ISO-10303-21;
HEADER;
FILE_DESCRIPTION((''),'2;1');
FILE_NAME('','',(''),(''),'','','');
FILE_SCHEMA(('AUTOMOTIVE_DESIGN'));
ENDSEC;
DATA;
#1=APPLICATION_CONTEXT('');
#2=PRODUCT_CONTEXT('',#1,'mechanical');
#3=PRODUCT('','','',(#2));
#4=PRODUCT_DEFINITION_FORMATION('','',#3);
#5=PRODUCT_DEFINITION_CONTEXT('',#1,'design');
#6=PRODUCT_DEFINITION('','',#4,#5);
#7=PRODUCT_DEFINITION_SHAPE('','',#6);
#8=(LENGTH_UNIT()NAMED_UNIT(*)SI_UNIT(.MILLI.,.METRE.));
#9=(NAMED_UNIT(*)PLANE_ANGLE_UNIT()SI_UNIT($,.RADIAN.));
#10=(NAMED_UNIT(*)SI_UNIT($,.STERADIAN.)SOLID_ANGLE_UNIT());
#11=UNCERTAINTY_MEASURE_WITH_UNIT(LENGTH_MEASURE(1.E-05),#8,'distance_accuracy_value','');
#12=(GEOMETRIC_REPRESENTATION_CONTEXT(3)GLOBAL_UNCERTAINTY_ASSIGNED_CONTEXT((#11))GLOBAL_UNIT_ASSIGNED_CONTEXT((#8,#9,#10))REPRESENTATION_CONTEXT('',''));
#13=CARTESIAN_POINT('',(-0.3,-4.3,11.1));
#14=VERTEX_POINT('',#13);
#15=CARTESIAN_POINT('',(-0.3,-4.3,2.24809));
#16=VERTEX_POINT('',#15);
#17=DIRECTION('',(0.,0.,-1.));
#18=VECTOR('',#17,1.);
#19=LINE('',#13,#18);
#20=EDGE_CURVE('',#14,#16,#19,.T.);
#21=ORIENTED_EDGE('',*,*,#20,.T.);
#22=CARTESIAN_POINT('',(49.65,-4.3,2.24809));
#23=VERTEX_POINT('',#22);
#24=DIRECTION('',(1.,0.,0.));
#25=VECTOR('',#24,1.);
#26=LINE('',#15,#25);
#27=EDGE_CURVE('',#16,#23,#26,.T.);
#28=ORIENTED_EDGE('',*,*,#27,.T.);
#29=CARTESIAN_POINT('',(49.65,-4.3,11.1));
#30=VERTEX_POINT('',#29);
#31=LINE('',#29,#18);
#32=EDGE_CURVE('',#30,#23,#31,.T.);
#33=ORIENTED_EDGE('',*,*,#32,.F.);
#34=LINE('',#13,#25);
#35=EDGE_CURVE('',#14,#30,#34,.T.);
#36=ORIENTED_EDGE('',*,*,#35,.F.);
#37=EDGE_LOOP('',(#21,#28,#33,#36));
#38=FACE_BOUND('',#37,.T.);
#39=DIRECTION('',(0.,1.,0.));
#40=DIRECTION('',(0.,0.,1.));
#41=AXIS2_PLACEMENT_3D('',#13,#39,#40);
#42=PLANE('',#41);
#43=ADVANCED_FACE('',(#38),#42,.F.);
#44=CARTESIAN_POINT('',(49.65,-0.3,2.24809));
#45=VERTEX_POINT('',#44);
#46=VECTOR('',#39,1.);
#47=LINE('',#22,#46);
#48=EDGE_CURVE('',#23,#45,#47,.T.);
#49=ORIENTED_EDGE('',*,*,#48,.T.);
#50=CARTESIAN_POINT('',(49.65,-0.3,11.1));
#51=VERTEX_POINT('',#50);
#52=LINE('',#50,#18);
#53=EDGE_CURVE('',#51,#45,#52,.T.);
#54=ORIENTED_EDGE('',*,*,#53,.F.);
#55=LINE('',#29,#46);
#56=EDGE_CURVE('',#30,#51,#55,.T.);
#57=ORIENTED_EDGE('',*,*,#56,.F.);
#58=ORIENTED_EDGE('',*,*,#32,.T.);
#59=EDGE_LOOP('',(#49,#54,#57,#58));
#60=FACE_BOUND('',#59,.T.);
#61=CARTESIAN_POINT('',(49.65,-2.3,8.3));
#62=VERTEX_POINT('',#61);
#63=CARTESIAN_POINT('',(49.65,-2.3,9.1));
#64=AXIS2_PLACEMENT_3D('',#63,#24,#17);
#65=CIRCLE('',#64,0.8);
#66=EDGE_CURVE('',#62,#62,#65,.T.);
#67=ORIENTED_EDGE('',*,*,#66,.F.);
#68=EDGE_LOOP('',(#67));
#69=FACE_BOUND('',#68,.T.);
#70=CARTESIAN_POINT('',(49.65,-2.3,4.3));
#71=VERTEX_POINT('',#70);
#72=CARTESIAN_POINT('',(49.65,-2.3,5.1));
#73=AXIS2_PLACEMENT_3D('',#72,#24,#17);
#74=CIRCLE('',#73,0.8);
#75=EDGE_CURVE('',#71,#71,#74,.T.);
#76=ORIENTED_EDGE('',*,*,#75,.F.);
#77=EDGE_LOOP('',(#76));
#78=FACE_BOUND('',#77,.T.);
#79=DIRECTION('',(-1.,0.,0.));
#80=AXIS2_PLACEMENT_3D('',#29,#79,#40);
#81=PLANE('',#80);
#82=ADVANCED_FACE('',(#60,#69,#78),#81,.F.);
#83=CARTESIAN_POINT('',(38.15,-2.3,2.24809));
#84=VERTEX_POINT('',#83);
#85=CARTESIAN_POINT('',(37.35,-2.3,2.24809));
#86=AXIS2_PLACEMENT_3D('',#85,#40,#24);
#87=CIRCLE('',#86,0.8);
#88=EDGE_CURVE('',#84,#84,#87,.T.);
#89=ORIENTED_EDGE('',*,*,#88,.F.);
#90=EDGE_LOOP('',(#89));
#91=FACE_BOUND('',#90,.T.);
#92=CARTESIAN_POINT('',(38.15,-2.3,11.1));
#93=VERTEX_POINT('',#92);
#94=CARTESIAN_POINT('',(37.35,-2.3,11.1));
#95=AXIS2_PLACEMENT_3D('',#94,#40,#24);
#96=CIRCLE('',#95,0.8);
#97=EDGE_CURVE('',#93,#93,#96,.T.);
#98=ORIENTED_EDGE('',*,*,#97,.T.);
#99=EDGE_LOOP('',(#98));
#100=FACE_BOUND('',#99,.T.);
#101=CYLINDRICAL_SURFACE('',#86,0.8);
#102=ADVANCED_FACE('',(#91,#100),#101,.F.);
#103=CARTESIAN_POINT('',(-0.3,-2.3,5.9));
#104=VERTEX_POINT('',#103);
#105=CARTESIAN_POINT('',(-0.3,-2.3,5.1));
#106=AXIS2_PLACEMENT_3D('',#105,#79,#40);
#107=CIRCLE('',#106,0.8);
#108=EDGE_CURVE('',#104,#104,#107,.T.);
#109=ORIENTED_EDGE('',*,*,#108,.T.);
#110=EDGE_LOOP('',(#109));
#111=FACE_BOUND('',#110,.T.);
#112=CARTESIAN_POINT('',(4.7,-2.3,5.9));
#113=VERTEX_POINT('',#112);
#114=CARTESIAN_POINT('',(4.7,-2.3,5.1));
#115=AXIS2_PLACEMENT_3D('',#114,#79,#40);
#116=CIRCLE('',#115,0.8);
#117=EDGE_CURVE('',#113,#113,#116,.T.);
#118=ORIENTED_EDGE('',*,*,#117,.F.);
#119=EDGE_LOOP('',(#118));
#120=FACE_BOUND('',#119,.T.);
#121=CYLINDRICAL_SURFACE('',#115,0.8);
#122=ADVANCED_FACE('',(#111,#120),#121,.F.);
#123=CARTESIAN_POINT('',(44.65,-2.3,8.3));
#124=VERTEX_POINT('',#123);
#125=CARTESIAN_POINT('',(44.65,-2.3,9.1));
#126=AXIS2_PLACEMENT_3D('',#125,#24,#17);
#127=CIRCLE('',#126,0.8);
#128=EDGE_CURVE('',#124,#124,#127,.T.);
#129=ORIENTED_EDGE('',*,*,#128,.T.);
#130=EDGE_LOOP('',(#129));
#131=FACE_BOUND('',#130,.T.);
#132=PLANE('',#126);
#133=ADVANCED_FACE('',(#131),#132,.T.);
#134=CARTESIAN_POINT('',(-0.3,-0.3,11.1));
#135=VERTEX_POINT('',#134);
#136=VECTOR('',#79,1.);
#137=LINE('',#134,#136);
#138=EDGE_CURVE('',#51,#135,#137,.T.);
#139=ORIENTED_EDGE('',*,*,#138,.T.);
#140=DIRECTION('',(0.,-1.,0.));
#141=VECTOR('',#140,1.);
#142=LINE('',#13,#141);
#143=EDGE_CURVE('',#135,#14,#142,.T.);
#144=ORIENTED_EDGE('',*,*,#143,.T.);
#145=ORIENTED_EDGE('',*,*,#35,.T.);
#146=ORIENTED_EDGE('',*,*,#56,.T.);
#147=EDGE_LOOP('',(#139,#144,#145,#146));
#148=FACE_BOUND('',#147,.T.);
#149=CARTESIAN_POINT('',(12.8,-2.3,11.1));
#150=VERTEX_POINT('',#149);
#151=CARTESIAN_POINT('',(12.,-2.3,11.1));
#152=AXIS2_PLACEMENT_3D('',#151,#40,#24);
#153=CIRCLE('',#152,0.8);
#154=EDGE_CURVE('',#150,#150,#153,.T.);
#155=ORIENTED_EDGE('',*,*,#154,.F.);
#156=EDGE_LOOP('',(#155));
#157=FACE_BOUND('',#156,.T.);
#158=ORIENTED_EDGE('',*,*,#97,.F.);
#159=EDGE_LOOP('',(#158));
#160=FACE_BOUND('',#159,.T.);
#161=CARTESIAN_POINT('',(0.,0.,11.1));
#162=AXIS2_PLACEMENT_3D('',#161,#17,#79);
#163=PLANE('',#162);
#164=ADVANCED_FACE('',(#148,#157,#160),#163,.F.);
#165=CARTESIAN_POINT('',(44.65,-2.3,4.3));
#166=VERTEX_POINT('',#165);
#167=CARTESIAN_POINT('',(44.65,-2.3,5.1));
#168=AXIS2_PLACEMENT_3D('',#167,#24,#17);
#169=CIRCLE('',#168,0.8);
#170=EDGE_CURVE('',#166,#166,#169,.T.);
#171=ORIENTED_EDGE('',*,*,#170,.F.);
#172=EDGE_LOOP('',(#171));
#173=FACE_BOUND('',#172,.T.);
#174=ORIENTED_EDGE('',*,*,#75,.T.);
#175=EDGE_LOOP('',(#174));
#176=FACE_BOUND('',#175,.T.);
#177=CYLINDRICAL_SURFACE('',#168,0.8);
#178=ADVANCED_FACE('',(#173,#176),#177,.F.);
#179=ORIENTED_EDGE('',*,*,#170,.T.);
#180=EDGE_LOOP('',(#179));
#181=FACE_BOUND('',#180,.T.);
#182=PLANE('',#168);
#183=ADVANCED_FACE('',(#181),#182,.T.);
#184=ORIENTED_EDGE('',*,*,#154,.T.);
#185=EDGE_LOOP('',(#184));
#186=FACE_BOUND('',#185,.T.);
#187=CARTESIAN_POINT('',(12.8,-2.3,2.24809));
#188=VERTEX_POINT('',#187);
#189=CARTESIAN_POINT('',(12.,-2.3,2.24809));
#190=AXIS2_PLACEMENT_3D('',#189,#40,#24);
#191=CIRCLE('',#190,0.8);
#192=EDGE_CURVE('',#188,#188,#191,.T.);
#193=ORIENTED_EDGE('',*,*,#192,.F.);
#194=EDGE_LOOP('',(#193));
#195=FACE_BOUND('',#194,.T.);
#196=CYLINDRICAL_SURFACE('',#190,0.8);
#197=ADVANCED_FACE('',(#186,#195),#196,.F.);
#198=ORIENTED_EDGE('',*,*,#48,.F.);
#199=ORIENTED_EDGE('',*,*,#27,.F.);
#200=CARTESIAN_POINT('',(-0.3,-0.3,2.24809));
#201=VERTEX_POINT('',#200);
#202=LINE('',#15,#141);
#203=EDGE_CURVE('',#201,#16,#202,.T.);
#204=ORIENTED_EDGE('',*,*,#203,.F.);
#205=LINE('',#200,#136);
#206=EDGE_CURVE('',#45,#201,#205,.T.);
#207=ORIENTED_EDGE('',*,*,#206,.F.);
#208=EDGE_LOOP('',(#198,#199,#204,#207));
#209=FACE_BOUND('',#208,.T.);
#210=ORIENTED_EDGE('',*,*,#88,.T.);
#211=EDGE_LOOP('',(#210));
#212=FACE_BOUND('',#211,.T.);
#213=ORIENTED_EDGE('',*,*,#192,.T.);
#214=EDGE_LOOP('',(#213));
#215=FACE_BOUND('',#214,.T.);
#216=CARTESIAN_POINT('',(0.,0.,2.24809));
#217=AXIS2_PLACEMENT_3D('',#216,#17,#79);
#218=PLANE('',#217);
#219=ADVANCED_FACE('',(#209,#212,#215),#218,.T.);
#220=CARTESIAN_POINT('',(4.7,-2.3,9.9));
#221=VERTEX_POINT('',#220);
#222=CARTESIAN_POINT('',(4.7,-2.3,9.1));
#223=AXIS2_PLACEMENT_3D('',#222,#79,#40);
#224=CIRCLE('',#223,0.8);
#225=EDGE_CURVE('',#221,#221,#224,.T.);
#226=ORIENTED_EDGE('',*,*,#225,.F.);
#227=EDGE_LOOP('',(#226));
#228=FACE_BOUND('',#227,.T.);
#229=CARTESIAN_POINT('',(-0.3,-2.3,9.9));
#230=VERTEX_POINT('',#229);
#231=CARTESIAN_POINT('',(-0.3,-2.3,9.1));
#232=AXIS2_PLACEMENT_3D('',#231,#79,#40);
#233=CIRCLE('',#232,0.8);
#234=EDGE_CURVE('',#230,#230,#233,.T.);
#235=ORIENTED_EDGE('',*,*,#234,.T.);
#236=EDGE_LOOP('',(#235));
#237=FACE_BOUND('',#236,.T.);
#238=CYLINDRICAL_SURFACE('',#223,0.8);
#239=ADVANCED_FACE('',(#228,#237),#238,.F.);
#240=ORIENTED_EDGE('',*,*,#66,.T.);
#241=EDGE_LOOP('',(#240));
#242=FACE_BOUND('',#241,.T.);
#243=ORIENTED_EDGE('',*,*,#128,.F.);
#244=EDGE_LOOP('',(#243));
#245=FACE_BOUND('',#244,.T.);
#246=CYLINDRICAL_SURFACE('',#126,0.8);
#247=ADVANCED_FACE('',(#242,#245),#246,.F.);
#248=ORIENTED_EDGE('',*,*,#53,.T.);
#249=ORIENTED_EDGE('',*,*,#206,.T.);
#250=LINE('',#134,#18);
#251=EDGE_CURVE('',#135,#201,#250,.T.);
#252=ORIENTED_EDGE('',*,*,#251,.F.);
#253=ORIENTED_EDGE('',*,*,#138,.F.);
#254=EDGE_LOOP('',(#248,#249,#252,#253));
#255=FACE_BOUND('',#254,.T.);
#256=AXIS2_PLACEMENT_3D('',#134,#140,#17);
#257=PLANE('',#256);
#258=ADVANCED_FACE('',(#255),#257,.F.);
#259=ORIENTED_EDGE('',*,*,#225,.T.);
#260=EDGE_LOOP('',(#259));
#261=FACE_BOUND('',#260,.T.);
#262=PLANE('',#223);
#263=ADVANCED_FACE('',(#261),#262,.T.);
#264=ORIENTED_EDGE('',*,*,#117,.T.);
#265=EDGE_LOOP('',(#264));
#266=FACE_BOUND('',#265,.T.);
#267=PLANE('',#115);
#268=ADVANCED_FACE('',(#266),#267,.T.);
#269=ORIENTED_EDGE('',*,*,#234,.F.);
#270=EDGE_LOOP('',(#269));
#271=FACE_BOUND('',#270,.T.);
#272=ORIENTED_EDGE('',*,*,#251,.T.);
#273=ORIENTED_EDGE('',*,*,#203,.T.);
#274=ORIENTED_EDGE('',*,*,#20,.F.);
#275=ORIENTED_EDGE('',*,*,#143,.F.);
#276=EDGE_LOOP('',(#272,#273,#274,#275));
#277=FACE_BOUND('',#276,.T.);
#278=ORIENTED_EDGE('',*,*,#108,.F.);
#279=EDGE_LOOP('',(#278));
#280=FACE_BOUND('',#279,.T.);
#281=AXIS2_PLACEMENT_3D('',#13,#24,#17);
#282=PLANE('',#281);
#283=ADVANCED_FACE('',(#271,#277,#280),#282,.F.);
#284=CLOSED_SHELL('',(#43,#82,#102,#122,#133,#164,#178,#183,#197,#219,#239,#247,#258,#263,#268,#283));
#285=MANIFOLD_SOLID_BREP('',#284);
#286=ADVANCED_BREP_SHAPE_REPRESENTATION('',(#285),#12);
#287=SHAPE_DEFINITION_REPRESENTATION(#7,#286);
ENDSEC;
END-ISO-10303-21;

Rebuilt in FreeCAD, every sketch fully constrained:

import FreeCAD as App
import Part
import Sketcher

doc = App.newDocument("Part")
body = doc.addObject("PartDesign::Body", "Body")

sketch1 = body.newObject("Sketcher::SketchObject", "Sketch")
sketch1.AttachmentSupport = (doc.getObject("XY_Plane"), [""])
sketch1.MapMode = "FlatFace"
sketch1.AttachmentOffset = App.Placement(App.Vector(0, 0, 2.24809), App.Rotation())
sketch1.addGeometry([
    Part.LineSegment(App.Vector(-0.3, -0.3, 0), App.Vector(-0.3, -4.3, 0)),
    Part.LineSegment(App.Vector(-0.3, -4.3, 0), App.Vector(49.6, -4.3, 0)),
    Part.LineSegment(App.Vector(49.6, -4.3, 0), App.Vector(49.6, -0.3, 0)),
    Part.LineSegment(App.Vector(49.6, -0.3, 0), App.Vector(-0.3, -0.3, 0)),
], False)
sketch1.addConstraint([
    Sketcher.Constraint("Coincident", 0, 2, 1, 1),
    Sketcher.Constraint("Coincident", 1, 2, 2, 1),
    Sketcher.Constraint("Coincident", 2, 2, 3, 1),
    Sketcher.Constraint("Coincident", 3, 2, 0, 1),
    Sketcher.Constraint("Vertical", 0),
    Sketcher.Constraint("Horizontal", 1),
    Sketcher.Constraint("Vertical", 2),
    Sketcher.Constraint("Horizontal", 3),
    Sketcher.Constraint("DistanceY", 0, 2, 0, 1, 4.0),
    Sketcher.Constraint("DistanceX", 1, 1, 1, 2, 49.95),
    Sketcher.Constraint("DistanceX", 0, 2, -1, 1, 0.3),
    Sketcher.Constraint("DistanceY", 0, 2, -1, 1, 4.3),
])
pad1 = body.newObject("PartDesign::Pad", "Pad")
pad1.Profile = sketch1
pad1.Length = 8.85191

sketch2 = body.newObject("Sketcher::SketchObject", "Sketch001")
sketch2.AttachmentSupport = (doc.getObject("XY_Plane"), [""])
sketch2.MapMode = "FlatFace"
sketch2.AttachmentOffset = App.Placement(App.Vector(0, 0, 11.1), App.Rotation())
sketch2.addGeometry([
    Part.Circle(App.Vector(12, -2.3, 0), App.Vector(0, 0, 1), 0.8),
    Part.Circle(App.Vector(37.4, -2.3, 0), App.Vector(0, 0, 1), 0.8),
], False)
sketch2.addConstraint([
    Sketcher.Constraint("Equal", 0, 1),
    Sketcher.Constraint("Horizontal", 0, 3, 1, 3),
    Sketcher.Constraint("Diameter", 0, 1.6),
    Sketcher.Constraint("DistanceX", -1, 1, 0, 3, 12.0),
    Sketcher.Constraint("DistanceY", 0, 3, -1, 1, 2.3),
    Sketcher.Constraint("DistanceX", -1, 1, 1, 3, 37.35),
])
pocket1 = body.newObject("PartDesign::Pocket", "Pocket")
pocket1.Profile = sketch2
pocket1.Type = "ThroughAll"

sketch3 = body.newObject("Sketcher::SketchObject", "Sketch002")
sketch3.AttachmentSupport = (doc.getObject("YZ_Plane"), [""])
sketch3.MapMode = "FlatFace"
sketch3.AttachmentOffset = App.Placement(App.Vector(0, 0, -0.3), App.Rotation())
sketch3.addGeometry([
    Part.Circle(App.Vector(-2.3, 5.1, 0), App.Vector(0, 0, 1), 0.8),
    Part.Circle(App.Vector(-2.3, 9.1, 0), App.Vector(0, 0, 1), 0.8),
], False)
sketch3.addConstraint([
    Sketcher.Constraint("Equal", 0, 1),
    Sketcher.Constraint("Vertical", 0, 3, 1, 3),
    Sketcher.Constraint("Diameter", 0, 1.6),
    Sketcher.Constraint("DistanceY", 0, 3, 1, 3, 4.0),
    Sketcher.Constraint("DistanceX", 0, 3, -1, 1, 2.3),
    Sketcher.Constraint("DistanceY", -1, 1, 0, 3, 5.1),
])
pocket2 = body.newObject("PartDesign::Pocket", "Pocket001")
pocket2.Profile = sketch3
pocket2.Length = 5
pocket2.Reversed = True

sketch4 = body.newObject("Sketcher::SketchObject", "Sketch003")
sketch4.AttachmentSupport = (doc.getObject("YZ_Plane"), [""])
sketch4.MapMode = "FlatFace"
sketch4.AttachmentOffset = App.Placement(App.Vector(0, 0, 44.65), App.Rotation())
sketch4.addGeometry([
    Part.Circle(App.Vector(-2.3, 5.1, 0), App.Vector(0, 0, 1), 0.8),
    Part.Circle(App.Vector(-2.3, 9.1, 0), App.Vector(0, 0, 1), 0.8),
], False)
sketch4.addConstraint([
    Sketcher.Constraint("Equal", 0, 1),
    Sketcher.Constraint("Vertical", 0, 3, 1, 3),
    Sketcher.Constraint("Diameter", 0, 1.6),
    Sketcher.Constraint("DistanceY", 0, 3, 1, 3, 4.0),
    Sketcher.Constraint("DistanceX", 0, 3, -1, 1, 2.3),
    Sketcher.Constraint("DistanceY", -1, 1, 0, 3, 5.1),
])
pocket3 = body.newObject("PartDesign::Pocket", "Pocket002")
pocket3.Profile = sketch4
pocket3.Length = 5
pocket3.Reversed = True

doc.recompute()
